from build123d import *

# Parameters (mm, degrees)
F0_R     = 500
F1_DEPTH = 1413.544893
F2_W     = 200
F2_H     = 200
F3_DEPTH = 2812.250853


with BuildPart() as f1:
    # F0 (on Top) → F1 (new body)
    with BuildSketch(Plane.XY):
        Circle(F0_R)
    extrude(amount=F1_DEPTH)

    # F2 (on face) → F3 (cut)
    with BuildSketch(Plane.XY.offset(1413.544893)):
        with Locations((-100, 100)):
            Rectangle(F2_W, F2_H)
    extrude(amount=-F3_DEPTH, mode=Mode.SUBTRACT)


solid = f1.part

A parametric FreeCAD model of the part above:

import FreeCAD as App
import Part
import Sketcher
from FreeCAD import Vector
Q = App.Units.Quantity

doc = App.newDocument("Part")
body = doc.addObject("PartDesign::Body", "Body")

# Sketch on XY plane
sketch1 = doc.addObject("Sketcher::SketchObject", "Sketch")
body.addObject(sketch1)
sketch1.AttachmentSupport = (doc.XY_Plane, [""])
sketch1.MapMode = "FlatFace"
sketch1.addGeometry(Part.Circle(Vector(0, 0, 0), Vector(0, 0, 1), 500), False)
sketch1.addConstraint(Sketcher.Constraint("Coincident", 0, 3, -1, 1))
sketch1.addConstraint(Sketcher.Constraint("Diameter", 0, Q("1000 mm")))
pad1 = doc.addObject("PartDesign::Pad", "Pad")
body.addObject(pad1)
pad1.Profile = sketch1
pad1.Length = 1413.544893

# Sketch on XY plane
sketch2 = doc.addObject("Sketcher::SketchObject", "Sketch001")
body.addObject(sketch2)
sketch2.AttachmentSupport = (doc.XY_Plane, [""])
sketch2.MapMode = "FlatFace"
sketch2.AttachmentOffset = App.Placement(Vector(0, 0, 1413.544893), App.Rotation())
sketch2.addGeometry(Part.LineSegment(Vector(-200, 200, 0), Vector(-200, 0, 0)), False)
sketch2.addGeometry(Part.LineSegment(Vector(-200, 0, 0), Vector(0, 0, 0)), False)
sketch2.addGeometry(Part.LineSegment(Vector(0, 0, 0), Vector(0, 200, 0)), False)
sketch2.addGeometry(Part.LineSegment(Vector(0, 200, 0), Vector(-200, 200, 0)), False)
sketch2.addConstraint(Sketcher.Constraint("Coincident", 0, 2, 1, 1))
sketch2.addConstraint(Sketcher.Constraint("Coincident", 1, 2, 2, 1))
sketch2.addConstraint(Sketcher.Constraint("Coincident", 2, 2, 3, 1))
sketch2.addConstraint(Sketcher.Constraint("Coincident", 3, 2, 0, 1))
sketch2.addConstraint(Sketcher.Constraint("Vertical", 0))
sketch2.addConstraint(Sketcher.Constraint("Horizontal", 1))
sketch2.addConstraint(Sketcher.Constraint("Vertical", 2))
sketch2.addConstraint(Sketcher.Constraint("Horizontal", 3))
sketch2.addConstraint(Sketcher.Constraint("Coincident", 1, 2, -1, 1))
sketch2.addConstraint(Sketcher.Constraint("Equal", 3, 0))
sketch2.addConstraint(Sketcher.Constraint("DistanceX", 1, 1, 1, 2, Q("200 mm")))
pocket1 = doc.addObject("PartDesign::Pocket", "Pocket")
body.addObject(pocket1)
pocket1.Profile = sketch2
pocket1.Length = 2812.250853

doc.recompute()
